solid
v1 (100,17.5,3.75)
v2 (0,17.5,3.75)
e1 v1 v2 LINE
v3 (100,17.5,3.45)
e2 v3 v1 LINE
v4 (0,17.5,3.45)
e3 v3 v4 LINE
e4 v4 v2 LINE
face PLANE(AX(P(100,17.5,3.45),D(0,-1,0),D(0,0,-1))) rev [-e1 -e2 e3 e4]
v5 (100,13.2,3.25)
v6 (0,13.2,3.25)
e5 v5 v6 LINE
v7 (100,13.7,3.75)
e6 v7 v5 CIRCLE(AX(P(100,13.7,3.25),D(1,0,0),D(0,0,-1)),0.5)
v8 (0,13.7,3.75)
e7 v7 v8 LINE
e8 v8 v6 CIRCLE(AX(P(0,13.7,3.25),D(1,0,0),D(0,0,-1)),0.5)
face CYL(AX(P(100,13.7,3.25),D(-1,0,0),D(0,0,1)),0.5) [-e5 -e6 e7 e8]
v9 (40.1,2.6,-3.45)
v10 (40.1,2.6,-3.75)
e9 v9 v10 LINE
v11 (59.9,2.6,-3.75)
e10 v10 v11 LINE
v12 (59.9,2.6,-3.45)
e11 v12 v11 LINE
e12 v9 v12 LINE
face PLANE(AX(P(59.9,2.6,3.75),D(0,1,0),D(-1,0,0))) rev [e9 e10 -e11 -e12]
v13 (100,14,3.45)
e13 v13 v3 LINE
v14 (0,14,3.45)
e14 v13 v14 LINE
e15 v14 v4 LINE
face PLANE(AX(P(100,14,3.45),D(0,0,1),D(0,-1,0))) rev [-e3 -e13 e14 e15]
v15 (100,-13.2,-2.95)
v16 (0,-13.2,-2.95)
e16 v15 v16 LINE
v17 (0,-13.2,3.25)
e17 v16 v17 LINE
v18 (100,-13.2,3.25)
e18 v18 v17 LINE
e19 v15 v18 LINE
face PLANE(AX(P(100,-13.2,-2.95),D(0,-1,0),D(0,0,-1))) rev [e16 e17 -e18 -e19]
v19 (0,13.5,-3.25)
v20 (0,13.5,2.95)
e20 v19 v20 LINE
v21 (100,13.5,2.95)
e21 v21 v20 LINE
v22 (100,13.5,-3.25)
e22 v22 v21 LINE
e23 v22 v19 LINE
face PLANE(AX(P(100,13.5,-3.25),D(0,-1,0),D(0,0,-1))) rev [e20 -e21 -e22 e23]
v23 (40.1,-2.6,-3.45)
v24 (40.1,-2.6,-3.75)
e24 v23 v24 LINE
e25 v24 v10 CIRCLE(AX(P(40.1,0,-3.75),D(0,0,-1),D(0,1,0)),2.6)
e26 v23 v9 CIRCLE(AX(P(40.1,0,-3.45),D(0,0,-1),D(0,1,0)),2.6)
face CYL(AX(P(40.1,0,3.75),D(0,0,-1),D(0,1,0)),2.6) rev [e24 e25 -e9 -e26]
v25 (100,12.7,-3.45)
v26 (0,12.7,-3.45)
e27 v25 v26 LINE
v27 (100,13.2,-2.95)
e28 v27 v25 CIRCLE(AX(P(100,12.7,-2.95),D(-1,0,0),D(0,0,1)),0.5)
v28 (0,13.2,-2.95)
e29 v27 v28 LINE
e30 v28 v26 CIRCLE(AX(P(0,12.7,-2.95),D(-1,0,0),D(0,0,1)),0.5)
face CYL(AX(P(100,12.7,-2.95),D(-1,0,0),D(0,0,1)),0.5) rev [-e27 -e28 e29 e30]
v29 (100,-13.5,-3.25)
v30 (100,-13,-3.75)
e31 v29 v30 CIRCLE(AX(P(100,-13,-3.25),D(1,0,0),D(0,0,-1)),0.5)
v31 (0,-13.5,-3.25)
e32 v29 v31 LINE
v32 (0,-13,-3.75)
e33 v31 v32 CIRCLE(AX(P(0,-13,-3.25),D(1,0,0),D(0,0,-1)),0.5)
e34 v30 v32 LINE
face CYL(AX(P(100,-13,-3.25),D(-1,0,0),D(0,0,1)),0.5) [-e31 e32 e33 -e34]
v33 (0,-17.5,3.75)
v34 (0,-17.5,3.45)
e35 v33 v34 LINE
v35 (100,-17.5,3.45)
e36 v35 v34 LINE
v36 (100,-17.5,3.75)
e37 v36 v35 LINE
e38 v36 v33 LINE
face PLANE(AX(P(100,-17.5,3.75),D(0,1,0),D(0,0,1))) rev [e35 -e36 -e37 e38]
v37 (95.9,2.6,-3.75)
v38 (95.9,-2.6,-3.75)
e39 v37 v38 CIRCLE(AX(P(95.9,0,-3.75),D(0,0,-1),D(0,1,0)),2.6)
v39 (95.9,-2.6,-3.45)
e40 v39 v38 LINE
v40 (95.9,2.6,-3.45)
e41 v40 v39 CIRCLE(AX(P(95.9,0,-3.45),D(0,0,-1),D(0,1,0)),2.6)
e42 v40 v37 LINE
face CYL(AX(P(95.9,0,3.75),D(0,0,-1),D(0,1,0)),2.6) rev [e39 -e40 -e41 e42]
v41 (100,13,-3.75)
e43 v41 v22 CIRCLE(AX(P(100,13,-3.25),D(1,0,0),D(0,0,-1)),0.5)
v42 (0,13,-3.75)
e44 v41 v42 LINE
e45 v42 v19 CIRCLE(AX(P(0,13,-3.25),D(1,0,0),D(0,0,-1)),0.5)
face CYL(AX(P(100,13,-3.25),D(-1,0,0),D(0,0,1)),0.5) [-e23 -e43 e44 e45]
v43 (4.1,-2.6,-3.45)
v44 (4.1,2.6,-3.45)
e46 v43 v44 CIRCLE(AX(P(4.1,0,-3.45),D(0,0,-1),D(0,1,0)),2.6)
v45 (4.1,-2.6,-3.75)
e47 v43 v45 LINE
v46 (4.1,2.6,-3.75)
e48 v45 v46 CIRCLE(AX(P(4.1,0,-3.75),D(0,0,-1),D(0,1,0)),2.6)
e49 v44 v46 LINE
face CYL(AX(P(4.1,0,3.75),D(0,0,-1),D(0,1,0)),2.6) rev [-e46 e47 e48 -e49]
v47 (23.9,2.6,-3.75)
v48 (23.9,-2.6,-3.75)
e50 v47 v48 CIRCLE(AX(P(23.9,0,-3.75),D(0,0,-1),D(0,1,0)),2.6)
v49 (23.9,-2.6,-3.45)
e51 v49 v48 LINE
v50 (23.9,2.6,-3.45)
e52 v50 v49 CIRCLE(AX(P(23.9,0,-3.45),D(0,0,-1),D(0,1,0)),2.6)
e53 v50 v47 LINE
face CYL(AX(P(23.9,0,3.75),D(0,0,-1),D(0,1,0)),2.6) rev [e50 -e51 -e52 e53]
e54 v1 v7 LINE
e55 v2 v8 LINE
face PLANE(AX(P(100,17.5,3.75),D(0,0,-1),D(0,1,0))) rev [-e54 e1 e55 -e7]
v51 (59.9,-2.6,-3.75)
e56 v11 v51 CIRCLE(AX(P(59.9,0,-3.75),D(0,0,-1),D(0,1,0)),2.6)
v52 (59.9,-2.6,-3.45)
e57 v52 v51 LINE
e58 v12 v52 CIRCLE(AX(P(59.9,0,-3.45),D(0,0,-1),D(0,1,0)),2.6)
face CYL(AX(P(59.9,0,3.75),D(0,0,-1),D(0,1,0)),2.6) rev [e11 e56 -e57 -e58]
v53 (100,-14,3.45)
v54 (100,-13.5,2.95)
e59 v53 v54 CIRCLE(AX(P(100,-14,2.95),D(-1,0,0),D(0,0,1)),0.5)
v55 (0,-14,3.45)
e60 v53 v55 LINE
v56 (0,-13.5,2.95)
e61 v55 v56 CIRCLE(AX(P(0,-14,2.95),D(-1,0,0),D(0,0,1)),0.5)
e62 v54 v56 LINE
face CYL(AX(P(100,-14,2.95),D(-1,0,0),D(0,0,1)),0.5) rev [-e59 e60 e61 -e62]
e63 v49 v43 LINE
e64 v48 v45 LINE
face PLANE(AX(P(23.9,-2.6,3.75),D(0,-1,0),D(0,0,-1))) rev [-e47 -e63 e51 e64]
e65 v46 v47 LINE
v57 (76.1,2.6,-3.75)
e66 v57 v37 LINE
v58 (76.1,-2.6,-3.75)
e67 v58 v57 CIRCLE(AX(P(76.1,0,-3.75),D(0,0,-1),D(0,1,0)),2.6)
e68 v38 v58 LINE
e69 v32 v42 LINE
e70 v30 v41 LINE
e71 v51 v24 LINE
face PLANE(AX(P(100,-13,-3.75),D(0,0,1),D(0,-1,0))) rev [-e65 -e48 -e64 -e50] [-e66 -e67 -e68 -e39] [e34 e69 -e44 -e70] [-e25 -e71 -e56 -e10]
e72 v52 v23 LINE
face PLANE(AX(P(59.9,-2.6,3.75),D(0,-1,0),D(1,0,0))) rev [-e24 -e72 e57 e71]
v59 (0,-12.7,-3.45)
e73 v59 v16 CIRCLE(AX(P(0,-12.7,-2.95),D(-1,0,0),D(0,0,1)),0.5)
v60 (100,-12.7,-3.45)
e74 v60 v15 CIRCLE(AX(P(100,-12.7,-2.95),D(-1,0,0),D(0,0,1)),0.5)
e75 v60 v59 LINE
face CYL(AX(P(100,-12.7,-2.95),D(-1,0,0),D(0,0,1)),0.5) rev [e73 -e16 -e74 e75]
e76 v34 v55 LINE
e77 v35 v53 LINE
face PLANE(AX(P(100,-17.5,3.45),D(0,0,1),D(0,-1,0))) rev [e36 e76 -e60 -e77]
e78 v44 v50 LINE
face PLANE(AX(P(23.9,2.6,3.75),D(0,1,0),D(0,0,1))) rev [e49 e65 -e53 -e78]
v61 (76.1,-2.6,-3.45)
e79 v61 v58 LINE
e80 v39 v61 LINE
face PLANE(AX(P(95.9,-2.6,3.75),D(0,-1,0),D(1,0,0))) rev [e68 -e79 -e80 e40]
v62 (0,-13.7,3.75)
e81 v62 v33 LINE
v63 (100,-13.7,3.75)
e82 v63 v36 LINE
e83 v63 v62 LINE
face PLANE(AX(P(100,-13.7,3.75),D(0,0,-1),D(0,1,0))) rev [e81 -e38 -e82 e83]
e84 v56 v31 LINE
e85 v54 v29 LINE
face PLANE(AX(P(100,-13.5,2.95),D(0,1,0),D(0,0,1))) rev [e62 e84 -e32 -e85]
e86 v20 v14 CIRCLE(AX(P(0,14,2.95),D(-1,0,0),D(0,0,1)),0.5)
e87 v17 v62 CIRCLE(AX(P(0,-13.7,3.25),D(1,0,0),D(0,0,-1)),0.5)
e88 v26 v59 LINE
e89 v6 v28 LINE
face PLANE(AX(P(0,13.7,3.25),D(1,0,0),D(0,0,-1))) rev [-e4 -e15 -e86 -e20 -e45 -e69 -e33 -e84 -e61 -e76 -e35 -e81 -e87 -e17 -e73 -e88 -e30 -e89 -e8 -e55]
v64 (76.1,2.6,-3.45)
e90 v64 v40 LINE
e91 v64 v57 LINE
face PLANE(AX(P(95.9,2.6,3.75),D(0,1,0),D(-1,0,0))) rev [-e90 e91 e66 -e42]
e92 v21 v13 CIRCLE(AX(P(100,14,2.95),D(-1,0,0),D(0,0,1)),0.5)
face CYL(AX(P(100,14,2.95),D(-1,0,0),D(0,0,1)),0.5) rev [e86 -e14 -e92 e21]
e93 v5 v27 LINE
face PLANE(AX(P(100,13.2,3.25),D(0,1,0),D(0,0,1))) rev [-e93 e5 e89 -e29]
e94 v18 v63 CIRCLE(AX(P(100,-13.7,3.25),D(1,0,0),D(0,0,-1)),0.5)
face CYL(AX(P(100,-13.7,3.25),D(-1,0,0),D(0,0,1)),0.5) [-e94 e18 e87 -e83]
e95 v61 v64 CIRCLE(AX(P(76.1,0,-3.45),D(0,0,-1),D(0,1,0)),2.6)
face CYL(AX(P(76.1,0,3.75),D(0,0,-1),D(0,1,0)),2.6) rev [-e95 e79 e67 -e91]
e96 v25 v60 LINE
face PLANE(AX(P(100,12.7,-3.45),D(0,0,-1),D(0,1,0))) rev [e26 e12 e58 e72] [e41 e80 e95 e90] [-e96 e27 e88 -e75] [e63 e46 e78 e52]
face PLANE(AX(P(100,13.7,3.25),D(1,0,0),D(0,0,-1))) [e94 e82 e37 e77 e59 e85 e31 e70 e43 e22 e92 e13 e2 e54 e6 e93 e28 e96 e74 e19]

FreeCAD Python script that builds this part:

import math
import FreeCAD as App
import Part
import Sketcher

V = App.Vector

doc = App.newDocument("Part")
body = doc.addObject("PartDesign::Body", "Body")

# Sketch on YZ plane
sketch1 = body.newObject("Sketcher::SketchObject", "Sketch")
sketch1.AttachmentSupport = (doc.getObject("YZ_Plane"), [""])
sketch1.MapMode = "FlatFace"
sketch1.addGeometry(Part.LineSegment(V(17.5, 3.75, 0), V(13.7, 3.75, 0)), False)
sketch1.addGeometry(Part.ArcOfCircle(Part.Circle(V(13.7, 3.25, 0), V(0, 0, 1), 0.5), math.radians(90), math.radians(180)), False)
sketch1.addGeometry(Part.LineSegment(V(13.2, 3.25, 0), V(13.2, -2.95, 0)), False)
sketch1.addGeometry(Part.ArcOfCircle(Part.Circle(V(12.7, -2.95, 0), V(0, 0, 1), 0.5), math.radians(-90), math.radians(0)), False)
sketch1.addGeometry(Part.LineSegment(V(12.7, -3.45, 0), V(-12.7, -3.45, 0)), False)
sketch1.addGeometry(Part.ArcOfCircle(Part.Circle(V(-12.7, -2.95, 0), V(0, 0, 1), 0.5), math.radians(180), math.radians(270)), False)
sketch1.addGeometry(Part.LineSegment(V(-13.2, -2.95, 0), V(-13.2, 3.25, 0)), False)
sketch1.addGeometry(Part.ArcOfCircle(Part.Circle(V(-13.7, 3.25, 0), V(0, 0, 1), 0.5), math.radians(0), math.radians(90)), False)
sketch1.addGeometry(Part.LineSegment(V(-13.7, 3.75, 0), V(-17.5, 3.75, 0)), False)
sketch1.addGeometry(Part.LineSegment(V(-17.5, 3.75, 0), V(-17.5, 3.45, 0)), False)
sketch1.addGeometry(Part.LineSegment(V(-17.5, 3.45, 0), V(-14, 3.45, 0)), False)
sketch1.addGeometry(Part.ArcOfCircle(Part.Circle(V(-14, 2.95, 0), V(0, 0, 1), 0.5), math.radians(0), math.radians(90)), False)
sketch1.addGeometry(Part.LineSegment(V(-13.5, 2.95, 0), V(-13.5, -3.25, 0)), False)
sketch1.addGeometry(Part.ArcOfCircle(Part.Circle(V(-13, -3.25, 0), V(0, 0, 1), 0.5), math.radians(180), math.radians(270)), False)
sketch1.addGeometry(Part.LineSegment(V(-13, -3.75, 0), V(13, -3.75, 0)), False)
sketch1.addGeometry(Part.ArcOfCircle(Part.Circle(V(13, -3.25, 0), V(0, 0, 1), 0.5), math.radians(-90), math.radians(0)), False)
sketch1.addGeometry(Part.LineSegment(V(13.5, -3.25, 0), V(13.5, 2.95, 0)), False)
sketch1.addGeometry(Part.ArcOfCircle(Part.Circle(V(14, 2.95, 0), V(0, 0, 1), 0.5), math.radians(90), math.radians(180)), False)
sketch1.addGeometry(Part.LineSegment(V(14, 3.45, 0), V(17.5, 3.45, 0)), False)
sketch1.addGeometry(Part.LineSegment(V(17.5, 3.45, 0), V(17.5, 3.75, 0)), False)
sketch1.addConstraint(Sketcher.Constraint("Tangent", 0, 2, 1, 1))
sketch1.addConstraint(Sketcher.Constraint("Tangent", 1, 2, 2, 1))
sketch1.addConstraint(Sketcher.Constraint("Tangent", 2, 2, 3, 2))
sketch1.addConstraint(Sketcher.Constraint("Tangent", 3, 1, 4, 1))
sketch1.addConstraint(Sketcher.Constraint("Tangent", 4, 2, 5, 2))
sketch1.addConstraint(Sketcher.Constraint("Tangent", 5, 1, 6, 1))
sketch1.addConstraint(Sketcher.Constraint("Tangent", 6, 2, 7, 1))
sketch1.addConstraint(Sketcher.Constraint("Tangent", 7, 2, 8, 1))
sketch1.addConstraint(Sketcher.Constraint("Coincident", 8, 2, 9, 1))
sketch1.addConstraint(Sketcher.Constraint("Coincident", 9, 2, 10, 1))
sketch1.addConstraint(Sketcher.Constraint("Tangent", 10, 2, 11, 2))
sketch1.addConstraint(Sketcher.Constraint("Tangent", 11, 1, 12, 1))
sketch1.addConstraint(Sketcher.Constraint("Tangent", 12, 2, 13, 1))
sketch1.addConstraint(Sketcher.Constraint("Tangent", 13, 2, 14, 1))
sketch1.addConstraint(Sketcher.Constraint("Tangent", 14, 2, 15, 1))
sketch1.addConstraint(Sketcher.Constraint("Tangent", 15, 2, 16, 1))
sketch1.addConstraint(Sketcher.Constraint("Tangent", 16, 2, 17, 2))
sketch1.addConstraint(Sketcher.Constraint("Tangent", 17, 1, 18, 1))
sketch1.addConstraint(Sketcher.Constraint("Coincident", 18, 2, 19, 1))
sketch1.addConstraint(Sketcher.Constraint("Coincident", 19, 2, 0, 1))
sketch1.addConstraint(Sketcher.Constraint("Horizontal", 0))
sketch1.addConstraint(Sketcher.Constraint("Vertical", 2))
sketch1.addConstraint(Sketcher.Constraint("Horizontal", 4))
sketch1.addConstraint(Sketcher.Constraint("Vertical", 6))
sketch1.addConstraint(Sketcher.Constraint("Horizontal", 8))
sketch1.addConstraint(Sketcher.Constraint("Vertical", 9))
sketch1.addConstraint(Sketcher.Constraint("Horizontal", 10))
sketch1.addConstraint(Sketcher.Constraint("Vertical", 12))
sketch1.addConstraint(Sketcher.Constraint("Horizontal", 14))
sketch1.addConstraint(Sketcher.Constraint("Vertical", 16))
sketch1.addConstraint(Sketcher.Constraint("Horizontal", 18))
sketch1.addConstraint(Sketcher.Constraint("Vertical", 19))
sketch1.addConstraint(Sketcher.Constraint("Equal", 1, 3))
sketch1.addConstraint(Sketcher.Constraint("Equal", 3, 5))
sketch1.addConstraint(Sketcher.Constraint("Equal", 5, 7))
sketch1.addConstraint(Sketcher.Constraint("Equal", 7, 11))
sketch1.addConstraint(Sketcher.Constraint("Equal", 11, 13))
sketch1.addConstraint(Sketcher.Constraint("Equal", 13, 15))
sketch1.addConstraint(Sketcher.Constraint("Equal", 15, 17))
sketch1.addConstraint(Sketcher.Constraint("Symmetric", 1, 3, 7, 3, -2))
sketch1.addConstraint(Sketcher.Constraint("Symmetric", 11, 3, 17, 3, -2))
sketch1.addConstraint(Sketcher.Constraint("Equal", 0, 8))
sketch1.addConstraint(Sketcher.Constraint("Equal", 6, 12))
sketch1.addConstraint(Sketcher.Constraint("Radius", 1, 0.5))
sketch1.addConstraint(Sketcher.Constraint("DistanceX", 14, 1, 14, 2, 26.0))
sketch1.addConstraint(Sketcher.Constraint("DistanceX", 0, 2, 0, 1, 3.8))
sketch1.addConstraint(Sketcher.Constraint("DistanceX", 4, 2, 4, 1, 25.4))
sketch1.addConstraint(Sketcher.Constraint("DistanceY", 2, 2, 2, 1, 6.2))
sketch1.addConstraint(Sketcher.Constraint("DistanceY", 9, 2, 9, 1, 0.3))
sketch1.addConstraint(Sketcher.Constraint("DistanceY", -1, 1, 1, 3, 3.25))
pad1 = body.newObject("PartDesign::Pad", "Pad")
pad1.Profile = sketch1
pad1.Length = 100

# Sketch on XY plane
sketch2 = body.newObject("Sketcher::SketchObject", "Sketch001")
sketch2.AttachmentSupport = (doc.getObject("XY_Plane"), [""])
sketch2.MapMode = "FlatFace"
sketch2.AttachmentOffset = App.Placement(V(0, 0, -3.75), App.Rotation())
sketch2.addGeometry(Part.LineSegment(V(76.1, 2.6, 0), V(95.9, 2.6, 0)), False)
sketch2.addGeometry(Part.ArcOfCircle(Part.Circle(V(95.9, 0, 0), V(0, 0, 1), 2.6), math.radians(-90), math.radians(90)), False)
sketch2.addGeometry(Part.LineSegment(V(95.9, -2.6, 0), V(76.1, -2.6, 0)), False)
sketch2.addGeometry(Part.ArcOfCircle(Part.Circle(V(76.1, 0, 0), V(0, 0, 1), 2.6), math.radians(90), math.radians(270)), False)
sketch2.addGeometry(Part.LineSegment(V(40.1, 2.6, 0), V(59.9, 2.6, 0)), False)
sketch2.addGeometry(Part.ArcOfCircle(Part.Circle(V(59.9, 0, 0), V(0, 0, 1), 2.6), math.radians(-90), math.radians(90)), False)
sketch2.addGeometry(Part.LineSegment(V(59.9, -2.6, 0), V(40.1, -2.6, 0)), False)
sketch2.addGeometry(Part.ArcOfCircle(Part.Circle(V(40.1, 0, 0), V(0, 0, 1), 2.6), math.radians(90), math.radians(270)), False)
sketch2.addGeometry(Part.LineSegment(V(4.1, 2.6, 0), V(23.9, 2.6, 0)), False)
sketch2.addGeometry(Part.ArcOfCircle(Part.Circle(V(23.9, 0, 0), V(0, 0, 1), 2.6), math.radians(-90), math.radians(90)), False)
sketch2.addGeometry(Part.LineSegment(V(23.9, -2.6, 0), V(4.1, -2.6, 0)), False)
sketch2.addGeometry(Part.ArcOfCircle(Part.Circle(V(4.1, 0, 0), V(0, 0, 1), 2.6), math.radians(90), math.radians(270)), False)
sketch2.addConstraint(Sketcher.Constraint("Tangent", 0, 2, 1, 2))
sketch2.addConstraint(Sketcher.Constraint("Tangent", 1, 1, 2, 1))
sketch2.addConstraint(Sketcher.Constraint("Tangent", 2, 2, 3, 2))
sketch2.addConstraint(Sketcher.Constraint("Tangent", 3, 1, 0, 1))
sketch2.addConstraint(Sketcher.Constraint("Tangent", 4, 2, 5, 2))
sketch2.addConstraint(Sketcher.Constraint("Tangent", 5, 1, 6, 1))
sketch2.addConstraint(Sketcher.Constraint("Tangent", 6, 2, 7, 2))
sketch2.addConstraint(Sketcher.Constraint("Tangent", 7, 1, 4, 1))
sketch2.addConstraint(Sketcher.Constraint("Tangent", 8, 2, 9, 2))
sketch2.addConstraint(Sketcher.Constraint("Tangent", 9, 1, 10, 1))
sketch2.addConstraint(Sketcher.Constraint("Tangent", 10, 2, 11, 2))
sketch2.addConstraint(Sketcher.Constraint("Tangent", 11, 1, 8, 1))
sketch2.addConstraint(Sketcher.Constraint("Horizontal", 0))
sketch2.addConstraint(Sketcher.Constraint("Horizontal", 2))
sketch2.addConstraint(Sketcher.Constraint("Horizontal", 4))
sketch2.addConstraint(Sketcher.Constraint("Horizontal", 6))
sketch2.addConstraint(Sketcher.Constraint("Horizontal", 8))
sketch2.addConstraint(Sketcher.Constraint("Horizontal", 10))
sketch2.addConstraint(Sketcher.Constraint("Equal", 3, 5))
sketch2.addConstraint(Sketcher.Constraint("Equal", 7, 9))
sketch2.addConstraint(Sketcher.Constraint("PointOnObject", 1, 3, -1))
sketch2.addConstraint(Sketcher.Constraint("PointOnObject", 5, 3, -1))
sketch2.addConstraint(Sketcher.Constraint("PointOnObject", 9, 3, -1))
sketch2.addConstraint(Sketcher.Constraint("Equal", 2, 4))
sketch2.addConstraint(Sketcher.Constraint("Equal", 6, 8))
sketch2.addConstraint(Sketcher.Constraint("Radius", 1, 2.6))
sketch2.addConstraint(Sketcher.Constraint("DistanceX", 0, 1, 0, 2, 19.8))
sketch2.addConstraint(Sketcher.Constraint("DistanceX", 5, 3, 1, 3, 36.0))
sketch2.addConstraint(Sketcher.Constraint("DistanceX", 9, 3, 5, 3, 36.0))
sketch2.addConstraint(Sketcher.Constraint("DistanceX", -1, 1, 1, 3, 95.9))
pocket1 = body.newObject("PartDesign::Pocket", "Pocket")
pocket1.Profile = sketch2
pocket1.Type = "ThroughAll"
pocket1.Reversed = True

doc.recompute()
